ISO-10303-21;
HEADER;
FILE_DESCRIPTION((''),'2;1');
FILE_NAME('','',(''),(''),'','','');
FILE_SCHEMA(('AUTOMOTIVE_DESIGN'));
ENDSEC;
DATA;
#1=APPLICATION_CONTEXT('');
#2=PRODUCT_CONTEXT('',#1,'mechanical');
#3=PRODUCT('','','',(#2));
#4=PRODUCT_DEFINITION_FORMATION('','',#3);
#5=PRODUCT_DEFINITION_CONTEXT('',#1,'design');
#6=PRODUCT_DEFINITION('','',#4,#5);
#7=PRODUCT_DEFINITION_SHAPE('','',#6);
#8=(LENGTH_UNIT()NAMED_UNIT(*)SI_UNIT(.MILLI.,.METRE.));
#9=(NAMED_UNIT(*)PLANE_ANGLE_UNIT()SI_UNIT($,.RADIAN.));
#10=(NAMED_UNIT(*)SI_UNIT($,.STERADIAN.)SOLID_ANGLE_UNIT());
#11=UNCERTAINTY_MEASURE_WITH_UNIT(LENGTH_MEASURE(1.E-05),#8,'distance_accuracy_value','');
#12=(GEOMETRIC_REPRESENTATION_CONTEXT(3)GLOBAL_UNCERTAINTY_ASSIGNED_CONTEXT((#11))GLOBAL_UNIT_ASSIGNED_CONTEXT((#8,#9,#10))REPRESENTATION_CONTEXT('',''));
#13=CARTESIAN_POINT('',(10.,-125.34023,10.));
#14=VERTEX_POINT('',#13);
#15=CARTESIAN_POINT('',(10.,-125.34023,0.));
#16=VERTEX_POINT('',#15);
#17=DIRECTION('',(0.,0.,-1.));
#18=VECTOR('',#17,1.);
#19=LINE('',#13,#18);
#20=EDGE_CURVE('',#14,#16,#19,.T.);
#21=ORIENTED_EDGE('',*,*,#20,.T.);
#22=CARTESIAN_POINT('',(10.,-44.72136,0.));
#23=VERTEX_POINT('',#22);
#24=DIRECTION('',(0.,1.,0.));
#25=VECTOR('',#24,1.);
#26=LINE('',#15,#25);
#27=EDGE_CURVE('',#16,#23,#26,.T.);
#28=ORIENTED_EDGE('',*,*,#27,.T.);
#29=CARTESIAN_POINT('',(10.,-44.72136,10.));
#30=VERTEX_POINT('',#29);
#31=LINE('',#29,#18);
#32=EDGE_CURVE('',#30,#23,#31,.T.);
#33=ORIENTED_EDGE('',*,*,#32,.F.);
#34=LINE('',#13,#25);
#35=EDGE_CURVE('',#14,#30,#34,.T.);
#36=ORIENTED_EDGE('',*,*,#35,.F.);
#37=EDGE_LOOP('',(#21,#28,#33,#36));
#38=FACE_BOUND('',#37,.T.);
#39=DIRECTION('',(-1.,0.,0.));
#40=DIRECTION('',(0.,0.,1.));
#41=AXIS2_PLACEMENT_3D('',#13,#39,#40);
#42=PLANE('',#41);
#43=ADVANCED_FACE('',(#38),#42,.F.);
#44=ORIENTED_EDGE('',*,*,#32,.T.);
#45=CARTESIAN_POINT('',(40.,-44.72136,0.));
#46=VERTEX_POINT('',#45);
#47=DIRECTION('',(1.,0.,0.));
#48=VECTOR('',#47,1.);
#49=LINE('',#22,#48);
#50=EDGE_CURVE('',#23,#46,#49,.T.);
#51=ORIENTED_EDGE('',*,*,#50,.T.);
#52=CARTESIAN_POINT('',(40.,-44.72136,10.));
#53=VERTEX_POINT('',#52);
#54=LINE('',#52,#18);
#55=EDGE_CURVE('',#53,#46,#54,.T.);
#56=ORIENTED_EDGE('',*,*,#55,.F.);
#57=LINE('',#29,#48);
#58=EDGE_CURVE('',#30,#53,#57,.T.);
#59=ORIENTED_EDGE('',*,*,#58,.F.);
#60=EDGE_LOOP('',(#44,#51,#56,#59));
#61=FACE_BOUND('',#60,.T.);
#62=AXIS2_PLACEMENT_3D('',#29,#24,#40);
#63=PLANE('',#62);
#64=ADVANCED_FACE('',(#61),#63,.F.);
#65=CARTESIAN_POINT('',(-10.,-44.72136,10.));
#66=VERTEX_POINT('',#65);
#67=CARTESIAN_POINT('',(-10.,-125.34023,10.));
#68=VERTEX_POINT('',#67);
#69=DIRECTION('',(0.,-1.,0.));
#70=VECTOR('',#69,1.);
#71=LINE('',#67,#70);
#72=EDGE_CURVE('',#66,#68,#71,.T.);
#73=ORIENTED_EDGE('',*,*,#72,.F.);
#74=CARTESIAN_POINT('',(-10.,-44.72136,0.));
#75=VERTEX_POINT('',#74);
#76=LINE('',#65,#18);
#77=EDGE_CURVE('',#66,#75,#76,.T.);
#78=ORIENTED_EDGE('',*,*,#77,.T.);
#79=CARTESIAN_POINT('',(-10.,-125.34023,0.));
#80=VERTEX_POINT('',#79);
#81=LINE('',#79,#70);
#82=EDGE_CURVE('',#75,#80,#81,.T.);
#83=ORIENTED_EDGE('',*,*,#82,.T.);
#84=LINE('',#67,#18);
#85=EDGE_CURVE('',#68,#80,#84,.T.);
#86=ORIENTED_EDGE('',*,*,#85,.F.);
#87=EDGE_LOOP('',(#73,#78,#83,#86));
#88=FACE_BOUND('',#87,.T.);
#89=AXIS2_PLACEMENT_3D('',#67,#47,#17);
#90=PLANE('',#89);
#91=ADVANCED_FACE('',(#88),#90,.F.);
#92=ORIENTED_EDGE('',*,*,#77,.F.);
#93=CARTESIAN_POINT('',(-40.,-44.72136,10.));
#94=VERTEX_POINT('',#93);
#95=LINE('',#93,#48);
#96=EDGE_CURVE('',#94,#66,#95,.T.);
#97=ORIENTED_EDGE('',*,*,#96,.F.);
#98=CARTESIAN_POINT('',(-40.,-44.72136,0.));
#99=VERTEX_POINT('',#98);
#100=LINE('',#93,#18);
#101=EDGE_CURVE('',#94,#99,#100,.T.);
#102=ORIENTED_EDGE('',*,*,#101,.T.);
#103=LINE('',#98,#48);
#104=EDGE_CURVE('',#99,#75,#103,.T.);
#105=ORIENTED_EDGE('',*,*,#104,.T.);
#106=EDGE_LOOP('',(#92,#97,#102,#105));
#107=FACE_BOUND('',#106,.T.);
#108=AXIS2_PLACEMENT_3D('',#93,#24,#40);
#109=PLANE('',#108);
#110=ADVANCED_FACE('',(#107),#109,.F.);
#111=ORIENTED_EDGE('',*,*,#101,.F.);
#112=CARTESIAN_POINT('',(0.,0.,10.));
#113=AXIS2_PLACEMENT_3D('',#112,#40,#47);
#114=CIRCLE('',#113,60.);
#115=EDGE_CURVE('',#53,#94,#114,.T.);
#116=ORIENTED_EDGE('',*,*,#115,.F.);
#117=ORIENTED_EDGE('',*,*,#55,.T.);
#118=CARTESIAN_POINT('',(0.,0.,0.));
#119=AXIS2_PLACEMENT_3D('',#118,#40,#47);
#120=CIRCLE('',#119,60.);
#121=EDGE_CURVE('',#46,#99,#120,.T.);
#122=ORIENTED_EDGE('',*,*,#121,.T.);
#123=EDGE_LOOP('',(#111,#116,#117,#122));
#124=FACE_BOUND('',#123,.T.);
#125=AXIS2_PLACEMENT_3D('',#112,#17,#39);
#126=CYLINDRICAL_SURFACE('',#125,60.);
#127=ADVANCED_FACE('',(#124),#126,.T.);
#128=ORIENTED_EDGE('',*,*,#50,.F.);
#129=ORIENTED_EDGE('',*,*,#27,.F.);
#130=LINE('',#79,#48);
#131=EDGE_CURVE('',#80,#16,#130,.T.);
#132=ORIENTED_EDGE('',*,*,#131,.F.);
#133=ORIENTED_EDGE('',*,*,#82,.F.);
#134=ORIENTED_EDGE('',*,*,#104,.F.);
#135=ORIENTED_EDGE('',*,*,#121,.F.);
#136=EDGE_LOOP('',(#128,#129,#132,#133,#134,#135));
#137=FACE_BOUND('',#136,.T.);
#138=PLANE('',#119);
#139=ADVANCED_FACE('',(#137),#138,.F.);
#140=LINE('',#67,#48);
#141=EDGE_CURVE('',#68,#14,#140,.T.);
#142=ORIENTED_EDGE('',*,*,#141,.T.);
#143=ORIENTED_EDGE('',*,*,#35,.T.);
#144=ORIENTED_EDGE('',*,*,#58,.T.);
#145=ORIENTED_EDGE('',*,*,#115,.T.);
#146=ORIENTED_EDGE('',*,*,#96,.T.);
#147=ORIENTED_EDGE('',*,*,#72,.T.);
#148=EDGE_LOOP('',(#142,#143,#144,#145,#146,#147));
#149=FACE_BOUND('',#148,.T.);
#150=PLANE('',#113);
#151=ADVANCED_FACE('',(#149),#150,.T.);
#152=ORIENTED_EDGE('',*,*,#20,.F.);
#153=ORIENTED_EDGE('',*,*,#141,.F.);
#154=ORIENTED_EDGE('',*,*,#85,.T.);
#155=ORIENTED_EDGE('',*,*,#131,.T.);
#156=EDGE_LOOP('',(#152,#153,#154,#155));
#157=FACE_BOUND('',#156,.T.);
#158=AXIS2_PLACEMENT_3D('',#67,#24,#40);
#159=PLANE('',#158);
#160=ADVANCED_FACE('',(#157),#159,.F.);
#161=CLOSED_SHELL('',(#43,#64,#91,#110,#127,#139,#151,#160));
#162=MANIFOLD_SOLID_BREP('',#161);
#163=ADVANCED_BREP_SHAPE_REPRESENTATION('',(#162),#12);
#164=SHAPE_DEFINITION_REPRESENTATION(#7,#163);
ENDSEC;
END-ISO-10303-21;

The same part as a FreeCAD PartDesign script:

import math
import FreeCAD as App
import Part
import Sketcher
from FreeCAD import Vector

doc = App.newDocument("Part")
body = doc.addObject("PartDesign::Body", "Body")

# Sketch on XY plane
sketch1 = body.newObject("Sketcher::SketchObject", "Sketch")
sketch1.AttachmentSupport = (doc.getObject("XY_Plane"), [""])
sketch1.MapMode = "FlatFace"
sketch1.addGeometry([
    Part.LineSegment(Vector(-40, -44.72136, 0), Vector(-10, -44.72136, 0)),  # 0
    Part.LineSegment(Vector(-10, -44.72136, 0), Vector(-10, -125.34023, 0)),  # 1
    Part.LineSegment(Vector(-10, -125.34023, 0), Vector(10, -125.34023, 0)),  # 2
    Part.LineSegment(Vector(10, -125.34023, 0), Vector(10, -44.72136, 0)),  # 3
    Part.LineSegment(Vector(10, -44.72136, 0), Vector(40, -44.72136, 0)),  # 4
    Part.ArcOfCircle(Part.Circle(Vector(0, 0, 0), Vector(0, 0, 1), 60), math.radians(-48.189685), math.radians(228.189685)),  # 5
], False)
sketch1.addConstraint([
    Sketcher.Constraint("Coincident", 0, 2, 1, 1),
    Sketcher.Constraint("Coincident", 1, 2, 2, 1),
    Sketcher.Constraint("Coincident", 2, 2, 3, 1),
    Sketcher.Constraint("Coincident", 3, 2, 4, 1),
    Sketcher.Constraint("Coincident", 4, 2, 5, 1),
    Sketcher.Constraint("Coincident", 5, 2, 0, 1),
    Sketcher.Constraint("Horizontal", 0),
    Sketcher.Constraint("Vertical", 1),
    Sketcher.Constraint("Horizontal", 2),
    Sketcher.Constraint("Vertical", 3),
    Sketcher.Constraint("Horizontal", 4),
    Sketcher.Constraint("Coincident", 5, 3, -1, 1),
    Sketcher.Constraint("Symmetric", 0, 2, 3, 2, -2),
    Sketcher.Constraint("Radius", 5, 60.0),
    Sketcher.Constraint("DistanceX", 0, 1, 0, 2, 30.0),
    Sketcher.Constraint("DistanceX", 2, 1, 2, 2, 20.0),
    Sketcher.Constraint("DistanceY", 1, 2, 1, 1, 80.618871),
])
pad1 = body.newObject("PartDesign::Pad", "Pad")
pad1.Profile = sketch1
pad1.Length = 10

doc.recompute()
